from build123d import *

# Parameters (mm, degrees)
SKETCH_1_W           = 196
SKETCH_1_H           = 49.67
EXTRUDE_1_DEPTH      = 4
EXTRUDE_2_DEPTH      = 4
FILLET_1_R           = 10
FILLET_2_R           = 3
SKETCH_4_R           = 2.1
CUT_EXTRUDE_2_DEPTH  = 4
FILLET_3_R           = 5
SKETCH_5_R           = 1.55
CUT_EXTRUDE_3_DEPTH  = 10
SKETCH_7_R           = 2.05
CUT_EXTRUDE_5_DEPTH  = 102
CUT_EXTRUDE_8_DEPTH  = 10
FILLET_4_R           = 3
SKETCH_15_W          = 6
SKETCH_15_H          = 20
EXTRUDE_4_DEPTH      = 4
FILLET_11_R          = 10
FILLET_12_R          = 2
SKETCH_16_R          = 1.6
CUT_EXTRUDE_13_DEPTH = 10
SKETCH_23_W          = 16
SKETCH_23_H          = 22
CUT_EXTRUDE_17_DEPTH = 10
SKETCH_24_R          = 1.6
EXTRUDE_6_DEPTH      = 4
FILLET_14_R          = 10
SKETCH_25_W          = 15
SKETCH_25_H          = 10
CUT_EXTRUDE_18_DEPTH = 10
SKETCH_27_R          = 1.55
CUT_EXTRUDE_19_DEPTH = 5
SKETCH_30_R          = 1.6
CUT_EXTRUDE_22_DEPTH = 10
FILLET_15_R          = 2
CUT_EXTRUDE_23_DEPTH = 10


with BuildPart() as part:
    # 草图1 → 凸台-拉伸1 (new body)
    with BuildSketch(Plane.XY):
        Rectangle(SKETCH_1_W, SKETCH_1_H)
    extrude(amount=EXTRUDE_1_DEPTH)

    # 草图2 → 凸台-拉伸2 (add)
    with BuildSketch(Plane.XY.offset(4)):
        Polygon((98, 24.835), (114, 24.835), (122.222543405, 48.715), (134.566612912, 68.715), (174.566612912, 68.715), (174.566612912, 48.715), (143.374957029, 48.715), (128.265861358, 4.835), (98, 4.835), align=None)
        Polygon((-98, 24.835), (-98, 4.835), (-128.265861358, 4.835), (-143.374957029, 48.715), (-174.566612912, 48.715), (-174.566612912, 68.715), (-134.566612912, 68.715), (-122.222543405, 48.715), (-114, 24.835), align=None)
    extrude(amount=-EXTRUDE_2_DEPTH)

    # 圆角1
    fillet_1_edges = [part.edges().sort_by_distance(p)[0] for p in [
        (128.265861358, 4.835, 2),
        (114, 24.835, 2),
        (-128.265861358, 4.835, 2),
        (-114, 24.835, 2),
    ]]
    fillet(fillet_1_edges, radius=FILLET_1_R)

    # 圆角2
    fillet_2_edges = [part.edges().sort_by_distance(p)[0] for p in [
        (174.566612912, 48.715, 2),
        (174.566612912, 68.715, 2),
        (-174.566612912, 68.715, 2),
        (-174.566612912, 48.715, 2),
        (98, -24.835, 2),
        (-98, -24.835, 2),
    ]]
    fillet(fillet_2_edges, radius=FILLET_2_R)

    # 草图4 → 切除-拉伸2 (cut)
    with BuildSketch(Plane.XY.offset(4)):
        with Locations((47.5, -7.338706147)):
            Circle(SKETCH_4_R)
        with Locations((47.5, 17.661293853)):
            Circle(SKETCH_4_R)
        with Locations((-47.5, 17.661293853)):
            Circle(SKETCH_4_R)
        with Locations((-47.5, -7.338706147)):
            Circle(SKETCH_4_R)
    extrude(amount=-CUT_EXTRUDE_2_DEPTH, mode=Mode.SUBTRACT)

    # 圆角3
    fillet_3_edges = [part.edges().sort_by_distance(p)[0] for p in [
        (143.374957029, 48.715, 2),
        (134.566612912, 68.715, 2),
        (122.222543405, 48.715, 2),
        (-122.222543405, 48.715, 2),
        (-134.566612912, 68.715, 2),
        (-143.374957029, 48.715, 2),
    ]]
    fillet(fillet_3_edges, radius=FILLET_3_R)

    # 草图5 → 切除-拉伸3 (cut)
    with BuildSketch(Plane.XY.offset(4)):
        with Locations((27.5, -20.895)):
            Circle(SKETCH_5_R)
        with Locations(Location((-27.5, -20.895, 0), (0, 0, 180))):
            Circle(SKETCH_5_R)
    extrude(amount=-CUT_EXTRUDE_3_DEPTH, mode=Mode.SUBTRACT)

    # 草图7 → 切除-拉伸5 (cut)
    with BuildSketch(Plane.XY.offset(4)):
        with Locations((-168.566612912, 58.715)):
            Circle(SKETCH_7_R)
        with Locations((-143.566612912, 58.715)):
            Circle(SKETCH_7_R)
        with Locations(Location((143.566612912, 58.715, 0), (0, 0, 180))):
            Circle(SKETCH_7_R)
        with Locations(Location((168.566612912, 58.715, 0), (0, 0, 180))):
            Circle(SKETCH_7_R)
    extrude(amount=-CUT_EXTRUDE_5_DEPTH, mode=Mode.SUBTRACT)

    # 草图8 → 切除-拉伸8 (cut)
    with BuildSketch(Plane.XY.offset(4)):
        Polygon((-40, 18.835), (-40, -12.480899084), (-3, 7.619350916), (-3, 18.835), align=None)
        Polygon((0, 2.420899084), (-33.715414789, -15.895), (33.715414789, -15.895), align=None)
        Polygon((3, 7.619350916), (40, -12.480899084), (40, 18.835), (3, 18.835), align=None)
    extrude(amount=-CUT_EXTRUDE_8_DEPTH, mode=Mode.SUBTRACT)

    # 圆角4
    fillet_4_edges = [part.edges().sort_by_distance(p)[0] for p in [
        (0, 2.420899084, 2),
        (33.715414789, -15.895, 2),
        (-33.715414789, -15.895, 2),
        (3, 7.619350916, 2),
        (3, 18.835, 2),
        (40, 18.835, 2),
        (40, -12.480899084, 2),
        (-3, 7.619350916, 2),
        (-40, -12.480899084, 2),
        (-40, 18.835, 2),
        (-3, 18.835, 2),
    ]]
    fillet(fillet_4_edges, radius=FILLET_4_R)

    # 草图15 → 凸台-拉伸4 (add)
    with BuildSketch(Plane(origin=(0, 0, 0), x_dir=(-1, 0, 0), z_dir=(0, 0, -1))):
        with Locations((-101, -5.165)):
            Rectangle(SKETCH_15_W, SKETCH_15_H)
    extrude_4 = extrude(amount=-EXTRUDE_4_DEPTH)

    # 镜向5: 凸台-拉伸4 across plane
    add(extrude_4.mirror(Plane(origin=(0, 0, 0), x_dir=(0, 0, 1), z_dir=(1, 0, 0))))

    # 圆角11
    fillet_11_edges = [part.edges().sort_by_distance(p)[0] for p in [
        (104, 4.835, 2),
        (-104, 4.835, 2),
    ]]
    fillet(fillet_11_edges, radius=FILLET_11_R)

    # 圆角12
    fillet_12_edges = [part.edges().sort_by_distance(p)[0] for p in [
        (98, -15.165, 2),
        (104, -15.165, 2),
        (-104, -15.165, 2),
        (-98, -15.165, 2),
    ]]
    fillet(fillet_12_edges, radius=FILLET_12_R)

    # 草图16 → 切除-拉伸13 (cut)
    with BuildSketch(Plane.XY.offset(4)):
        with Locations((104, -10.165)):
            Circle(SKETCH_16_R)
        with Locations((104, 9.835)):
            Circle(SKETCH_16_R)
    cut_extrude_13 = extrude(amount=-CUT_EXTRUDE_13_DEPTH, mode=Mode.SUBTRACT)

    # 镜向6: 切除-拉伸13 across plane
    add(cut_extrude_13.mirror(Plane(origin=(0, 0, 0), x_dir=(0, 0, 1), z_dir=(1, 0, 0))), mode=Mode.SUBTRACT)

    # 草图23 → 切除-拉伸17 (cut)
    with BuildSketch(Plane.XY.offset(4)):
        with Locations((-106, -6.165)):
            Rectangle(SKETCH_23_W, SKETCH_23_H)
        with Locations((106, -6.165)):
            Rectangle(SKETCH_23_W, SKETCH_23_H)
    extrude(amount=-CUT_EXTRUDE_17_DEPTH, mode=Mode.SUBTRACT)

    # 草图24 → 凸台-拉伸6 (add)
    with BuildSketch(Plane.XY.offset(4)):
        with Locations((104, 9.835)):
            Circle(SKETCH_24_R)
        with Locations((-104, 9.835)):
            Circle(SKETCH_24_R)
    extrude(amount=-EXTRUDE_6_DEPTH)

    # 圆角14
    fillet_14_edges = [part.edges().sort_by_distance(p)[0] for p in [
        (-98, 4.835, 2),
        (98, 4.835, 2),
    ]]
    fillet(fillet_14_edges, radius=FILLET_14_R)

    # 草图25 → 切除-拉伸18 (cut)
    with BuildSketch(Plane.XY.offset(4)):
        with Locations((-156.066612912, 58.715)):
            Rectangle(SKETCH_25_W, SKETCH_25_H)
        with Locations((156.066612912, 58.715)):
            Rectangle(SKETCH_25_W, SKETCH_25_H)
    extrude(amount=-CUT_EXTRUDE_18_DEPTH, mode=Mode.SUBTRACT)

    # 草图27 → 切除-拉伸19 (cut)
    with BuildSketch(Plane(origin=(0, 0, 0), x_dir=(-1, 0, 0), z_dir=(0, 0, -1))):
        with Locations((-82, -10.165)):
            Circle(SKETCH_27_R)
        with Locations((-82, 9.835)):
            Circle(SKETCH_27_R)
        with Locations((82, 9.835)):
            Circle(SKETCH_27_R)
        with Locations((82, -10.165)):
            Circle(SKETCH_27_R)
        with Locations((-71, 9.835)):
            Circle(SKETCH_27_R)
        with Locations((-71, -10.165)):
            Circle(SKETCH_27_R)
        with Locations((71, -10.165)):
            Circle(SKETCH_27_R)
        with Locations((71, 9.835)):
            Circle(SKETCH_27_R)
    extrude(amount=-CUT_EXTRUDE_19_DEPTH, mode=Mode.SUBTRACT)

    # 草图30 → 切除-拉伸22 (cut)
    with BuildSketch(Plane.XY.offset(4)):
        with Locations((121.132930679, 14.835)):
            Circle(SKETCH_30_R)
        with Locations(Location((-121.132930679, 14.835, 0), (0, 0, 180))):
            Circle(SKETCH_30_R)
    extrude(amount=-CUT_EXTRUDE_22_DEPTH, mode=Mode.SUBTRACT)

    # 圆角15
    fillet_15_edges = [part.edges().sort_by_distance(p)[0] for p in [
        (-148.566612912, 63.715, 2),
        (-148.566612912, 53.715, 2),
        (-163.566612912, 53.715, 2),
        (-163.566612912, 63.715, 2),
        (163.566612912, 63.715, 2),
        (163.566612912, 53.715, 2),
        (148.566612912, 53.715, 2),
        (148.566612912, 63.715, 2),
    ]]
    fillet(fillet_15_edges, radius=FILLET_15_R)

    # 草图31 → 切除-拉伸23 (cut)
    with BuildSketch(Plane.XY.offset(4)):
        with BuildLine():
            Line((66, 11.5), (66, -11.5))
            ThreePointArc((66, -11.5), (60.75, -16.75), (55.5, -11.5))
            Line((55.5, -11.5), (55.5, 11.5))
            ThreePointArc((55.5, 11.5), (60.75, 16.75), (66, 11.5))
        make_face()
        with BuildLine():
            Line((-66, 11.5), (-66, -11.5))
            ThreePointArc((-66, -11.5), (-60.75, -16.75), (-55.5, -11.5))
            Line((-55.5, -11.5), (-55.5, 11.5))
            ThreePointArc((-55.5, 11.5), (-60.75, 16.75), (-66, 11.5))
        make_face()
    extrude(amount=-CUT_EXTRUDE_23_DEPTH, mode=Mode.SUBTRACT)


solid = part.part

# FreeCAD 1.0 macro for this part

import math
import FreeCAD as App
import Part
import Sketcher
Q = App.Units.Quantity


def edges_at(feature, points):
    """Names of the edges that pass closest to the given points."""
    edges = feature.Shape.Edges
    near = lambda p: min(range(len(edges)), key=lambda i: edges[i].distToShape(Part.Vertex(*p))[0])
    return sorted({f"Edge{near(p) + 1}" for p in points})

doc = App.newDocument("Part")
body = doc.addObject("PartDesign::Body", "Body")

# Sketch on XY plane
sketch1 = doc.addObject("Sketcher::SketchObject", "Sketch")
body.addObject(sketch1)
sketch1.AttachmentSupport = (doc.XY_Plane, [""])
sketch1.MapMode = "FlatFace"
sketch1.addGeometry(Part.LineSegment(App.Vector(-98, 25, 0), App.Vector(-98, -25, 0)), False)
sketch1.addGeometry(Part.LineSegment(App.Vector(-98, -25, 0), App.Vector(98, -25, 0)), False)
sketch1.addGeometry(Part.LineSegment(App.Vector(98, -25, 0), App.Vector(98, 25, 0)), False)
sketch1.addGeometry(Part.LineSegment(App.Vector(98, 25, 0), App.Vector(-98, 25, 0)), False)
sketch1.addConstraint(Sketcher.Constraint("Coincident", 0, 2, 1, 1))
sketch1.addConstraint(Sketcher.Constraint("Coincident", 1, 2, 2, 1))
sketch1.addConstraint(Sketcher.Constraint("Coincident", 2, 2, 3, 1))
sketch1.addConstraint(Sketcher.Constraint("Coincident", 3, 2, 0, 1))
sketch1.addConstraint(Sketcher.Constraint("Vertical", 0))
sketch1.addConstraint(Sketcher.Constraint("Horizontal", 1))
sketch1.addConstraint(Sketcher.Constraint("Vertical", 2))
sketch1.addConstraint(Sketcher.Constraint("Horizontal", 3))
sketch1.addConstraint(Sketcher.Constraint("Symmetric", 0, 2, 2, 2, -1, 1))
sketch1.addConstraint(Sketcher.Constraint("DistanceX", 1, 1, 1, 2, Q("196 mm")))
sketch1.addConstraint(Sketcher.Constraint("DistanceY", 0, 2, 0, 1, Q("49.67 mm")))
pad1 = doc.addObject("PartDesign::Pad", "Pad")
body.addObject(pad1)
pad1.Profile = sketch1
pad1.Length = 4

# Sketch on XY plane
sketch2 = doc.addObject("Sketcher::SketchObject", "Sketch001")
body.addObject(sketch2)
sketch2.AttachmentSupport = (doc.XY_Plane, [""])
sketch2.MapMode = "FlatFace"
sketch2.AttachmentOffset = App.Placement(App.Vector(0, 0, 4), App.Rotation())
sketch2.addGeometry(Part.LineSegment(App.Vector(114, 25, 0), App.Vector(98, 25, 0)), False)
sketch2.addGeometry(Part.LineSegment(App.Vector(98, 25, 0), App.Vector(98, 5, 0)), False)
sketch2.addGeometry(Part.LineSegment(App.Vector(98, 5, 0), App.Vector(128, 5, 0)), False)
sketch2.addGeometry(Part.LineSegment(App.Vector(128, 5, 0), App.Vector(143, 49, 0)), False)
sketch2.addGeometry(Part.LineSegment(App.Vector(143, 49, 0), App.Vector(175, 49, 0)), False)
sketch2.addGeometry(Part.LineSegment(App.Vector(175, 49, 0), App.Vector(175, 69, 0)), False)
sketch2.addGeometry(Part.LineSegment(App.Vector(175, 69, 0), App.Vector(135, 69, 0)), False)
sketch2.addGeometry(Part.LineSegment(App.Vector(135, 69, 0), App.Vector(122, 49, 0)), False)
sketch2.addGeometry(Part.LineSegment(App.Vector(122, 49, 0), App.Vector(114, 25, 0)), False)
sketch2.addGeometry(Part.LineSegment(App.Vector(-98, 5, 0), App.Vector(-98, 25, 0)), False)
sketch2.addGeometry(Part.LineSegment(App.Vector(-98, 25, 0), App.Vector(-114, 25, 0)), False)
sketch2.addGeometry(Part.LineSegment(App.Vector(-114, 25, 0), App.Vector(-122, 49, 0)), False)
sketch2.addGeometry(Part.LineSegment(App.Vector(-122, 49, 0), App.Vector(-135, 69, 0)), False)
sketch2.addGeometry(Part.LineSegment(App.Vector(-135, 69, 0), App.Vector(-175, 69, 0)), False)
sketch2.addGeometry(Part.LineSegment(App.Vector(-175, 69, 0), App.Vector(-175, 49, 0)), False)
sketch2.addGeometry(Part.LineSegment(App.Vector(-175, 49, 0), App.Vector(-143, 49, 0)), False)
sketch2.addGeometry(Part.LineSegment(App.Vector(-143, 49, 0), App.Vector(-128, 5, 0)), False)
sketch2.addGeometry(Part.LineSegment(App.Vector(-128, 5, 0), App.Vector(-98, 5, 0)), False)
sketch2.addConstraint(Sketcher.Constraint("Coincident", 0, 2, 1, 1))
sketch2.addConstraint(Sketcher.Constraint("Coincident", 1, 2, 2, 1))
sketch2.addConstraint(Sketcher.Constraint("Coincident", 2, 2, 3, 1))
sketch2.addConstraint(Sketcher.Constraint("Coincident", 3, 2, 4, 1))
sketch2.addConstraint(Sketcher.Constraint("Coincident", 4, 2, 5, 1))
sketch2.addConstraint(Sketcher.Constraint("Coincident", 5, 2, 6, 1))
sketch2.addConstraint(Sketcher.Constraint("Coincident", 6, 2, 7, 1))
sketch2.addConstraint(Sketcher.Constraint("Coincident", 7, 2, 8, 1))
sketch2.addConstraint(Sketcher.Constraint("Coincident", 8, 2, 0, 1))
sketch2.addConstraint(Sketcher.Constraint("Coincident", 9, 2, 10, 1))
sketch2.addConstraint(Sketcher.Constraint("Coincident", 10, 2, 11, 1))
sketch2.addConstraint(Sketcher.Constraint("Coincident", 11, 2, 12, 1))
sketch2.addConstraint(Sketcher.Constraint("Coincident", 12, 2, 13, 1))
sketch2.addConstraint(Sketcher.Constraint("Coincident", 13, 2, 14, 1))
sketch2.addConstraint(Sketcher.Constraint("Coincident", 14, 2, 15, 1))
sketch2.addConstraint(Sketcher.Constraint("Coincident", 15, 2, 16, 1))
sketch2.addConstraint(Sketcher.Constraint("Coincident", 16, 2, 17, 1))
sketch2.addConstraint(Sketcher.Constraint("Coincident", 17, 2, 9, 1))
sketch2.addConstraint(Sketcher.Constraint("Horizontal", 0))
sketch2.addConstraint(Sketcher.Constraint("Vertical", 1))
sketch2.addConstraint(Sketcher.Constraint("Horizontal", 2))
sketch2.addConstraint(Sketcher.Constraint("Horizontal", 4))
sketch2.addConstraint(Sketcher.Constraint("Vertical", 5))
sketch2.addConstraint(Sketcher.Constraint("Horizontal", 6))
sketch2.addConstraint(Sketcher.Constraint("Vertical", 9))
sketch2.addConstraint(Sketcher.Constraint("Horizontal", 10))
sketch2.addConstraint(Sketcher.Constraint("Horizontal", 13))
sketch2.addConstraint(Sketcher.Constraint("Vertical", 14))
sketch2.addConstraint(Sketcher.Constraint("Horizontal", 15))
sketch2.addConstraint(Sketcher.Constraint("Horizontal", 17))
sketch2.addConstraint(Sketcher.Constraint("Symmetric", 0, 2, 9, 2, -2))
sketch2.addConstraint(Sketcher.Constraint("Symmetric", 7, 2, 11, 2, -2))
sketch2.addConstraint(Sketcher.Constraint("Symmetric", 6, 2, 12, 2, -2))
sketch2.addConstraint(Sketcher.Constraint("Symmetric", 4, 2, 14, 2, -2))
sketch2.addConstraint(Sketcher.Constraint("Symmetric", 2, 2, 16, 2, -2))
sketch2.addConstraint(Sketcher.Constraint("Parallel", 3, 8))
sketch2.addConstraint(Sketcher.Constraint("Parallel", 11, 16))
sketch2.addConstraint(Sketcher.Constraint("Horizontal", 4, 2, 7, 2))
sketch2.addConstraint(Sketcher.Constraint("Equal", 0, 10))
sketch2.addConstraint(Sketcher.Constraint("Equal", 1, 5))
sketch2.addConstraint(Sketcher.Constraint("DistanceX", 0, 2, 0, 1, Q("16 mm")))
sketch2.addConstraint(Sketcher.Constraint("DistanceX", 6, 2, 6, 1, Q("40 mm")))
sketch2.addConstraint(Sketcher.Constraint("DistanceY", 1, 2, 1, 1, Q("20 mm")))
sketch2.addConstraint(Sketcher.Constraint("Angle", 3, Q("71 deg")))
sketch2.addConstraint(Sketcher.Constraint("DistanceX", -1, 1, 0, 2, Q("98 mm")))
sketch2.addConstraint(Sketcher.Constraint("DistanceY", 2, 2, 3, 2, Q("43.88 mm")))
sketch2.addConstraint(Sketcher.Constraint("DistanceY", -1, 1, 0, 2, Q("24.835 mm")))
sketch2.addConstraint(Sketcher.Constraint("DistanceX", 2, 1, 2, 2, Q("30.265861 mm")))
sketch2.addConstraint(Sketcher.Constraint("Distance", 7, Q("23.502682 mm")))
pad2 = doc.addObject("PartDesign::Pad", "Pad001")
body.addObject(pad2)
pad2.Profile = sketch2
pad2.Length = 4
pad2.Reversed = True
doc.recompute()

fillet = doc.addObject("PartDesign::Fillet", "Fillet")
body.addObject(fillet)
fillet.Base = (pad2, edges_at(pad2, [
    (128.266, 4.835, 2),
    (114, 24.835, 2),
    (-128.266, 4.835, 2),
    (-114, 24.835, 2),
]))
fillet.Radius = 10
doc.recompute()

fillet2 = doc.addObject("PartDesign::Fillet", "Fillet001")
body.addObject(fillet2)
fillet2.Base = (fillet, edges_at(fillet, [
    (174.567, 48.715, 2),
    (174.567, 68.715, 2),
    (-174.567, 68.715, 2),
    (-174.567, 48.715, 2),
    (98, -24.835, 2),
    (-98, -24.835, 2),
]))
fillet2.Radius = 3

# Sketch on XY plane
sketch3 = doc.addObject("Sketcher::SketchObject", "Sketch002")
body.addObject(sketch3)
sketch3.AttachmentSupport = (doc.XY_Plane, [""])
sketch3.MapMode = "FlatFace"
sketch3.AttachmentOffset = App.Placement(App.Vector(0, 0, 4), App.Rotation())
sketch3.addGeometry(Part.Circle(App.Vector(47.5, -7.3, 0), App.Vector(0, 0, 1), 2.1), False)
sketch3.addGeometry(Part.Circle(App.Vector(47.5, 17.7, 0), App.Vector(0, 0, 1), 2.1), False)
sketch3.addGeometry(Part.Circle(App.Vector(-47.5, 17.7, 0), App.Vector(0, 0, 1), 2.1), False)
sketch3.addGeometry(Part.Circle(App.Vector(-47.5, -7.3, 0), App.Vector(0, 0, 1), 2.1), False)
sketch3.addConstraint(Sketcher.Constraint("Equal", 0, 1))
sketch3.addConstraint(Sketcher.Constraint("Equal", 1, 2))
sketch3.addConstraint(Sketcher.Constraint("Equal", 2, 3))
sketch3.addConstraint(Sketcher.Constraint("Symmetric", 1, 3, 2, 3, -2))
sketch3.addConstraint(Sketcher.Constraint("Symmetric", 0, 3, 3, 3, -2))
sketch3.addConstraint(Sketcher.Constraint("Vertical", 0, 3, 1, 3))
sketch3.addConstraint(Sketcher.Constraint("Diameter", 0, Q("4.2 mm")))
sketch3.addConstraint(Sketcher.Constraint("DistanceY", 0, 3, 1, 3, Q("25 mm")))
sketch3.addConstraint(Sketcher.Constraint("DistanceX", 2, 3, 1, 3, Q("95 mm")))
sketch3.addConstraint(Sketcher.Constraint("DistanceY", 0, 3, -1, 1, Q("7.338706 mm")))
pocket1 = doc.addObject("PartDesign::Pocket", "Pocket")
body.addObject(pocket1)
pocket1.Profile = sketch3
pocket1.Length = 4
doc.recompute()

fillet3 = doc.addObject("PartDesign::Fillet", "Fillet002")
body.addObject(fillet3)
fillet3.Base = (pocket1, edges_at(pocket1, [
    (143.375, 48.715, 2),
    (134.567, 68.715, 2),
    (122.223, 48.715, 2),
    (-122.223, 48.715, 2),
    (-134.567, 68.715, 2),
    (-143.375, 48.715, 2),
]))
fillet3.Radius = 5

# Sketch on XY plane
sketch4 = doc.addObject("Sketcher::SketchObject", "Sketch003")
body.addObject(sketch4)
sketch4.AttachmentSupport = (doc.XY_Plane, [""])
sketch4.MapMode = "FlatFace"
sketch4.AttachmentOffset = App.Placement(App.Vector(0, 0, 4), App.Rotation())
sketch4.addGeometry(Part.Circle(App.Vector(27.5, -20.9, 0), App.Vector(0, 0, 1), 1.6), False)
sketch4.addGeometry(Part.Circle(App.Vector(-27.5, -20.9, 0), App.Vector(0, 0, 1), 1.6), False)
sketch4.addConstraint(Sketcher.Constraint("Equal", 0, 1))
sketch4.addConstraint(Sketcher.Constraint("Symmetric", 0, 3, 1, 3, -2))
sketch4.addConstraint(Sketcher.Constraint("Diameter", 0, Q("3.1 mm")))
sketch4.addConstraint(Sketcher.Constraint("DistanceX", 1, 3, 0, 3, Q("55 mm")))
sketch4.addConstraint(Sketcher.Constraint("DistanceY", 0, 3, -1, 1, Q("20.895 mm")))
pocket2 = doc.addObject("PartDesign::Pocket", "Pocket001")
body.addObject(pocket2)
pocket2.Profile = sketch4
pocket2.Length = 10

# Sketch on XY plane
sketch5 = doc.addObject("Sketcher::SketchObject", "Sketch004")
body.addObject(sketch5)
sketch5.AttachmentSupport = (doc.XY_Plane, [""])
sketch5.MapMode = "FlatFace"
sketch5.AttachmentOffset = App.Placement(App.Vector(0, 0, 4), App.Rotation())
sketch5.addGeometry(Part.Circle(App.Vector(-168.6, 58.7, 0), App.Vector(0, 0, 1), 2), False)
sketch5.addGeometry(Part.Circle(App.Vector(-143.6, 58.7, 0), App.Vector(0, 0, 1), 2), False)
sketch5.addGeometry(Part.Circle(App.Vector(143.6, 58.7, 0), App.Vector(0, 0, 1), 2), False)
sketch5.addGeometry(Part.Circle(App.Vector(168.6, 58.7, 0), App.Vector(0, 0, 1), 2), False)
sketch5.addConstraint(Sketcher.Constraint("Equal", 0, 1))
sketch5.addConstraint(Sketcher.Constraint("Equal", 1, 2))
sketch5.addConstraint(Sketcher.Constraint("Equal", 2, 3))
sketch5.addConstraint(Sketcher.Constraint("Symmetric", 1, 3, 2, 3, -2))
sketch5.addConstraint(Sketcher.Constraint("Symmetric", 0, 3, 3, 3, -2))
sketch5.addConstraint(Sketcher.Constraint("Horizontal", 0, 3, 1, 3))
sketch5.addConstraint(Sketcher.Constraint("Diameter", 0, Q("4.1 mm")))
sketch5.addConstraint(Sketcher.Constraint("DistanceX", 0, 3, 1, 3, Q("25 mm")))
sketch5.addConstraint(Sketcher.Constraint("DistanceY", -1, 1, 0, 3, Q("58.715 mm")))
sketch5.addConstraint(Sketcher.Constraint("DistanceX", 0, 3, -1, 1, Q("168.566613 mm")))
pocket3 = doc.addObject("PartDesign::Pocket", "Pocket002")
body.addObject(pocket3)
pocket3.Profile = sketch5
pocket3.Length = 102

# Sketch on XY plane
sketch6 = doc.addObject("Sketcher::SketchObject", "Sketch005")
body.addObject(sketch6)
sketch6.AttachmentSupport = (doc.XY_Plane, [""])
sketch6.MapMode = "FlatFace"
sketch6.AttachmentOffset = App.Placement(App.Vector(0, 0, 4), App.Rotation())
sketch6.addGeometry(Part.LineSegment(App.Vector(-40, 19, 0), App.Vector(-40, -12, 0)), False)
sketch6.addGeometry(Part.LineSegment(App.Vector(-40, -12, 0), App.Vector(-3, 8, 0)), False)
sketch6.addGeometry(Part.LineSegment(App.Vector(-3, 8, 0), App.Vector(-3, 19, 0)), False)
sketch6.addGeometry(Part.LineSegment(App.Vector(-3, 19, 0), App.Vector(-40, 19, 0)), False)
sketch6.addGeometry(Part.LineSegment(App.Vector(0, 2, 0), App.Vector(-34, -16, 0)), False)
sketch6.addGeometry(Part.LineSegment(App.Vector(-34, -16, 0), App.Vector(34, -16, 0)), False)
sketch6.addGeometry(Part.LineSegment(App.Vector(34, -16, 0), App.Vector(0, 2, 0)), False)
sketch6.addGeometry(Part.LineSegment(App.Vector(3, 8, 0), App.Vector(40, -12, 0)), False)
sketch6.addGeometry(Part.LineSegment(App.Vector(40, -12, 0), App.Vector(40, 19, 0)), False)
sketch6.addGeometry(Part.LineSegment(App.Vector(40, 19, 0), App.Vector(3, 19, 0)), False)
sketch6.addGeometry(Part.LineSegment(App.Vector(3, 19, 0), App.Vector(3, 8, 0)), False)
sketch6.addConstraint(Sketcher.Constraint("Coincident", 0, 2, 1, 1))
sketch6.addConstraint(Sketcher.Constraint("Coincident", 1, 2, 2, 1))
sketch6.addConstraint(Sketcher.Constraint("Coincident", 2, 2, 3, 1))
sketch6.addConstraint(Sketcher.Constraint("Coincident", 3, 2, 0, 1))
sketch6.addConstraint(Sketcher.Constraint("Coincident", 4, 2, 5, 1))
sketch6.addConstraint(Sketcher.Constraint("Coincident", 5, 2, 6, 1))
sketch6.addConstraint(Sketcher.Constraint("Coincident", 6, 2, 4, 1))
sketch6.addConstraint(Sketcher.Constraint("Coincident", 7, 2, 8, 1))
sketch6.addConstraint(Sketcher.Constraint("Coincident", 8, 2, 9, 1))
sketch6.addConstraint(Sketcher.Constraint("Coincident", 9, 2, 10, 1))
sketch6.addConstraint(Sketcher.Constraint("Coincident", 10, 2, 7, 1))
sketch6.addConstraint(Sketcher.Constraint("Vertical", 0))
sketch6.addConstraint(Sketcher.Constraint("Vertical", 2))
sketch6.addConstraint(Sketcher.Constraint("Horizontal", 3))
sketch6.addConstraint(Sketcher.Constraint("Horizontal", 5))
sketch6.addConstraint(Sketcher.Constraint("Vertical", 8))
sketch6.addConstraint(Sketcher.Constraint("Horizontal", 9))
sketch6.addConstraint(Sketcher.Constraint("Vertical", 10))
sketch6.addConstraint(Sketcher.Constraint("Symmetric", 0, 2, 7, 2, -2))
sketch6.addConstraint(Sketcher.Constraint("Symmetric", 2, 2, 9, 2, -2))
sketch6.addConstraint(Sketcher.Constraint("PointOnObject", 6, 2, -2))
sketch6.addConstraint(Sketcher.Constraint("Parallel", 1, 4))
sketch6.addConstraint(Sketcher.Constraint("Parallel", 6, 7))
sketch6.addConstraint(Sketcher.Constraint("Horizontal", 1, 2, 10, 2))
sketch6.addConstraint(Sketcher.Constraint("DistanceX", 3, 2, 3, 1, Q("37 mm")))
sketch6.addConstraint(Sketcher.Constraint("DistanceX", 0, 2, -1, 1, Q("40 mm")))
sketch6.addConstraint(Sketcher.Constraint("DistanceY", 4, 2, 3, 2, Q("34.73 mm")))
sketch6.addConstraint(Sketcher.Constraint("DistanceY", 0, 2, 0, 1, Q("31.315899 mm")))
sketch6.addConstraint(Sketcher.Constraint("DistanceY", -1, 1, 2, 2, Q("18.835 mm")))
sketch6.addConstraint(Sketcher.Constraint("DistanceX", 5, 1, 5, 2, Q("67.43083 mm")))
sketch6.addConstraint(Sketcher.Constraint("DistanceY", 2, 1, 2, 2, Q("11.215649 mm")))
pocket4 = doc.addObject("PartDesign::Pocket", "Pocket003")
body.addObject(pocket4)
pocket4.Profile = sketch6
pocket4.Length = 10
doc.recompute()

fillet4 = doc.addObject("PartDesign::Fillet", "Fillet003")
body.addObject(fillet4)
fillet4.Base = (pocket4, edges_at(pocket4, [
    (0, 2.421, 2),
    (33.715, -15.895, 2),
    (-33.715, -15.895, 2),
    (3, 7.619, 2),
    (3, 18.835, 2),
    (40, 18.835, 2),
    (40, -12.481, 2),
    (-3, 7.619, 2),
    (-40, -12.481, 2),
    (-40, 18.835, 2),
    (-3, 18.835, 2),
]))
fillet4.Radius = 3

# Sketch on XY plane
sketch7 = doc.addObject("Sketcher::SketchObject", "Sketch006")
body.addObject(sketch7)
sketch7.AttachmentSupport = (doc.XY_Plane, [""])
sketch7.MapMode = "FlatFace"
sketch7.addGeometry(Part.LineSegment(App.Vector(104, 5, 0), App.Vector(104, -15, 0)), False)
sketch7.addGeometry(Part.LineSegment(App.Vector(104, -15, 0), App.Vector(98, -15, 0)), False)
sketch7.addGeometry(Part.LineSegment(App.Vector(98, -15, 0), App.Vector(98, 5, 0)), False)
sketch7.addGeometry(Part.LineSegment(App.Vector(98, 5, 0), App.Vector(104, 5, 0)), False)
sketch7.addConstraint(Sketcher.Constraint("Coincident", 0, 2, 1, 1))
sketch7.addConstraint(Sketcher.Constraint("Coincident", 1, 2, 2, 1))
sketch7.addConstraint(Sketcher.Constraint("Coincident", 2, 2, 3, 1))
sketch7.addConstraint(Sketcher.Constraint("Coincident", 3, 2, 0, 1))
sketch7.addConstraint(Sketcher.Constraint("Vertical", 0))
sketch7.addConstraint(Sketcher.Constraint("Horizontal", 1))
sketch7.addConstraint(Sketcher.Constraint("Vertical", 2))
sketch7.addConstraint(Sketcher.Constraint("Horizontal", 3))
sketch7.addConstraint(Sketcher.Constraint("DistanceX", 1, 2, 1, 1, Q("6 mm")))
sketch7.addConstraint(Sketcher.Constraint("DistanceY", 0, 2, 0, 1, Q("20 mm")))
sketch7.addConstraint(Sketcher.Constraint("DistanceX", -1, 1, 0, 2, Q("104 mm")))
sketch7.addConstraint(Sketcher.Constraint("DistanceY", 0, 2, -1, 1, Q("15.165 mm")))
pad3 = doc.addObject("PartDesign::Pad", "Pad002")
body.addObject(pad3)
pad3.Profile = sketch7
pad3.Length = 4
doc.recompute()

mirrored = doc.addObject("PartDesign::Mirrored", "Mirrored")
body.addObject(mirrored)
mirrored.Originals = [pad3]
mirrored.MirrorPlane = (doc.YZ_Plane, [""])
body.Tip = mirrored
doc.recompute()

fillet5 = doc.addObject("PartDesign::Fillet", "Fillet004")
body.addObject(fillet5)
fillet5.Base = (mirrored, edges_at(mirrored, [(104, 4.835, 2), (-104, 4.835, 2)]))
fillet5.Radius = 10
doc.recompute()

fillet6 = doc.addObject("PartDesign::Fillet", "Fillet005")
body.addObject(fillet6)
fillet6.Base = (fillet5, edges_at(fillet5, [
    (98, -15.165, 2),
    (104, -15.165, 2),
    (-104, -15.165, 2),
    (-98, -15.165, 2),
]))
fillet6.Radius = 2

# Sketch on XY plane
sketch8 = doc.addObject("Sketcher::SketchObject", "Sketch007")
body.addObject(sketch8)
sketch8.AttachmentSupport = (doc.XY_Plane, [""])
sketch8.MapMode = "FlatFace"
sketch8.AttachmentOffset = App.Placement(App.Vector(0, 0, 4), App.Rotation())
sketch8.addGeometry(Part.Circle(App.Vector(104, -10.2, 0), App.Vector(0, 0, 1), 1.6), False)
sketch8.addGeometry(Part.Circle(App.Vector(104, 9.8, 0), App.Vector(0, 0, 1), 1.6), False)
sketch8.addConstraint(Sketcher.Constraint("Equal", 0, 1))
sketch8.addConstraint(Sketcher.Constraint("Vertical", 0, 3, 1, 3))
sketch8.addConstraint(Sketcher.Constraint("Diameter", 0, Q("3.2 mm")))
sketch8.addConstraint(Sketcher.Constraint("DistanceX", -1, 1, 0, 3, Q("104 mm")))
sketch8.addConstraint(Sketcher.Constraint("DistanceY", 0, 3, 1, 3, Q("20 mm")))
sketch8.addConstraint(Sketcher.Constraint("DistanceY", 0, 3, -1, 1, Q("10.165 mm")))
pocket5 = doc.addObject("PartDesign::Pocket", "Pocket004")
body.addObject(pocket5)
pocket5.Profile = sketch8
pocket5.Length = 10
doc.recompute()

mirrored2 = doc.addObject("PartDesign::Mirrored", "Mirrored001")
body.addObject(mirrored2)
mirrored2.Originals = [pocket5]
mirrored2.MirrorPlane = (doc.YZ_Plane, [""])
body.Tip = mirrored2

# Sketch on XY plane
sketch9 = doc.addObject("Sketcher::SketchObject", "Sketch008")
body.addObject(sketch9)
sketch9.AttachmentSupport = (doc.XY_Plane, [""])
sketch9.MapMode = "FlatFace"
sketch9.AttachmentOffset = App.Placement(App.Vector(0, 0, 4), App.Rotation())
sketch9.addGeometry(Part.LineSegment(App.Vector(-114, 5, 0), App.Vector(-114, -17, 0)), False)
sketch9.addGeometry(Part.LineSegment(App.Vector(-114, -17, 0), App.Vector(-98, -17, 0)), False)
sketch9.addGeometry(Part.LineSegment(App.Vector(-98, -17, 0), App.Vector(-98, 5, 0)), False)
sketch9.addGeometry(Part.LineSegment(App.Vector(-98, 5, 0), App.Vector(-114, 5, 0)), False)
sketch9.addGeometry(Part.LineSegment(App.Vector(98, 5, 0), App.Vector(98, -17, 0)), False)
sketch9.addGeometry(Part.LineSegment(App.Vector(98, -17, 0), App.Vector(114, -17, 0)), False)
sketch9.addGeometry(Part.LineSegment(App.Vector(114, -17, 0), App.Vector(114, 5, 0)), False)
sketch9.addGeometry(Part.LineSegment(App.Vector(114, 5, 0), App.Vector(98, 5, 0)), False)
sketch9.addConstraint(Sketcher.Constraint("Coincident", 0, 2, 1, 1))
sketch9.addConstraint(Sketcher.Constraint("Coincident", 1, 2, 2, 1))
sketch9.addConstraint(Sketcher.Constraint("Coincident", 2, 2, 3, 1))
sketch9.addConstraint(Sketcher.Constraint("Coincident", 3, 2, 0, 1))
sketch9.addConstraint(Sketcher.Constraint("Coincident", 4, 2, 5, 1))
sketch9.addConstraint(Sketcher.Constraint("Coincident", 5, 2, 6, 1))
sketch9.addConstraint(Sketcher.Constraint("Coincident", 6, 2, 7, 1))
sketch9.addConstraint(Sketcher.Constraint("Coincident", 7, 2, 4, 1))
sketch9.addConstraint(Sketcher.Constraint("Vertical", 0))
sketch9.addConstraint(Sketcher.Constraint("Horizontal", 1))
sketch9.addConstraint(Sketcher.Constraint("Vertical", 2))
sketch9.addConstraint(Sketcher.Constraint("Horizontal", 3))
sketch9.addConstraint(Sketcher.Constraint("Vertical", 4))
sketch9.addConstraint(Sketcher.Constraint("Horizontal", 5))
sketch9.addConstraint(Sketcher.Constraint("Vertical", 6))
sketch9.addConstraint(Sketcher.Constraint("Horizontal", 7))
sketch9.addConstraint(Sketcher.Constraint("Symmetric", 1, 2, 4, 2, -2))
sketch9.addConstraint(Sketcher.Constraint("Symmetric", 3, 2, 6, 2, -2))
sketch9.addConstraint(Sketcher.Constraint("DistanceX", 1, 1, 1, 2, Q("16 mm")))
sketch9.addConstraint(Sketcher.Constraint("DistanceY", 0, 2, 0, 1, Q("22 mm")))
sketch9.addConstraint(Sketcher.Constraint("DistanceX", 0, 2, -1, 1, Q("114 mm")))
sketch9.addConstraint(Sketcher.Constraint("DistanceY", 0, 2, -1, 1, Q("17.165 mm")))
pocket6 = doc.addObject("PartDesign::Pocket", "Pocket005")
body.addObject(pocket6)
pocket6.Profile = sketch9
pocket6.Length = 10

# Sketch on XY plane
sketch10 = doc.addObject("Sketcher::SketchObject", "Sketch009")
body.addObject(sketch10)
sketch10.AttachmentSupport = (doc.XY_Plane, [""])
sketch10.MapMode = "FlatFace"
sketch10.AttachmentOffset = App.Placement(App.Vector(0, 0, 4), App.Rotation())
sketch10.addGeometry(Part.Circle(App.Vector(104, 9.8, 0), App.Vector(0, 0, 1), 1.6), False)
sketch10.addGeometry(Part.Circle(App.Vector(-104, 9.8, 0), App.Vector(0, 0, 1), 1.6), False)
sketch10.addConstraint(Sketcher.Constraint("Equal", 0, 1))
sketch10.addConstraint(Sketcher.Constraint("Symmetric", 0, 3, 1, 3, -2))
sketch10.addConstraint(Sketcher.Constraint("Diameter", 0, Q("3.2 mm")))
sketch10.addConstraint(Sketcher.Constraint("DistanceX", -1, 1, 0, 3, Q("104 mm")))
sketch10.addConstraint(Sketcher.Constraint("DistanceY", -1, 1, 0, 3, Q("9.835 mm")))
pad4 = doc.addObject("PartDesign::Pad", "Pad003")
body.addObject(pad4)
pad4.Profile = sketch10
pad4.Length = 4
pad4.Reversed = True
doc.recompute()

fillet7 = doc.addObject("PartDesign::Fillet", "Fillet006")
body.addObject(fillet7)
fillet7.Base = (pad4, edges_at(pad4, [(-98, 4.835, 2), (98, 4.835, 2)]))
fillet7.Radius = 10

# Sketch on XY plane
sketch11 = doc.addObject("Sketcher::SketchObject", "Sketch010")
body.addObject(sketch11)
sketch11.AttachmentSupport = (doc.XY_Plane, [""])
sketch11.MapMode = "FlatFace"
sketch11.AttachmentOffset = App.Placement(App.Vector(0, 0, 4), App.Rotation())
sketch11.addGeometry(Part.LineSegment(App.Vector(-164, 64, 0), App.Vector(-164, 54, 0)), False)
sketch11.addGeometry(Part.LineSegment(App.Vector(-164, 54, 0), App.Vector(-149, 54, 0)), False)
sketch11.addGeometry(Part.LineSegment(App.Vector(-149, 54, 0), App.Vector(-149, 64, 0)), False)
sketch11.addGeometry(Part.LineSegment(App.Vector(-149, 64, 0), App.Vector(-164, 64, 0)), False)
sketch11.addGeometry(Part.LineSegment(App.Vector(149, 64, 0), App.Vector(149, 54, 0)), False)
sketch11.addGeometry(Part.LineSegment(App.Vector(149, 54, 0), App.Vector(164, 54, 0)), False)
sketch11.addGeometry(Part.LineSegment(App.Vector(164, 54, 0), App.Vector(164, 64, 0)), False)
sketch11.addGeometry(Part.LineSegment(App.Vector(164, 64, 0), App.Vector(149, 64, 0)), False)
sketch11.addConstraint(Sketcher.Constraint("Coincident", 0, 2, 1, 1))
sketch11.addConstraint(Sketcher.Constraint("Coincident", 1, 2, 2, 1))
sketch11.addConstraint(Sketcher.Constraint("Coincident", 2, 2, 3, 1))
sketch11.addConstraint(Sketcher.Constraint("Coincident", 3, 2, 0, 1))
sketch11.addConstraint(Sketcher.Constraint("Coincident", 4, 2, 5, 1))
sketch11.addConstraint(Sketcher.Constraint("Coincident", 5, 2, 6, 1))
sketch11.addConstraint(Sketcher.Constraint("Coincident", 6, 2, 7, 1))
sketch11.addConstraint(Sketcher.Constraint("Coincident", 7, 2, 4, 1))
sketch11.addConstraint(Sketcher.Constraint("Vertical", 0))
sketch11.addConstraint(Sketcher.Constraint("Horizontal", 1))
sketch11.addConstraint(Sketcher.Constraint("Vertical", 2))
sketch11.addConstraint(Sketcher.Constraint("Horizontal", 3))
sketch11.addConstraint(Sketcher.Constraint("Vertical", 4))
sketch11.addConstraint(Sketcher.Constraint("Horizontal", 5))
sketch11.addConstraint(Sketcher.Constraint("Vertical", 6))
sketch11.addConstraint(Sketcher.Constraint("Horizontal", 7))
sketch11.addConstraint(Sketcher.Constraint("Symmetric", 1, 2, 4, 2, -2))
sketch11.addConstraint(Sketcher.Constraint("Symmetric", 3, 2, 6, 2, -2))
sketch11.addConstraint(Sketcher.Constraint("DistanceX", 1, 1, 1, 2, Q("15 mm")))
sketch11.addConstraint(Sketcher.Constraint("DistanceY", 0, 2, 0, 1, Q("10 mm")))
sketch11.addConstraint(Sketcher.Constraint("DistanceY", -1, 1, 0, 2, Q("53.715 mm")))
sketch11.addConstraint(Sketcher.Constraint("DistanceX", 0, 2, -1, 1, Q("163.566613 mm")))
pocket7 = doc.addObject("PartDesign::Pocket", "Pocket006")
body.addObject(pocket7)
pocket7.Profile = sketch11
pocket7.Length = 10

# Sketch on XY plane
sketch12 = doc.addObject("Sketcher::SketchObject", "Sketch011")
body.addObject(sketch12)
sketch12.AttachmentSupport = (doc.XY_Plane, [""])
sketch12.MapMode = "FlatFace"
sketch12.addGeometry(Part.Circle(App.Vector(82, -10.2, 0), App.Vector(0, 0, 1), 1.6), False)
sketch12.addGeometry(Part.Circle(App.Vector(82, 9.8, 0), App.Vector(0, 0, 1), 1.6), False)
sketch12.addGeometry(Part.Circle(App.Vector(-82, 9.8, 0), App.Vector(0, 0, 1), 1.6), False)
sketch12.addGeometry(Part.Circle(App.Vector(-82, -10.2, 0), App.Vector(0, 0, 1), 1.6), False)
sketch12.addGeometry(Part.Circle(App.Vector(71, 9.8, 0), App.Vector(0, 0, 1), 1.6), False)
sketch12.addGeometry(Part.Circle(App.Vector(71, -10.2, 0), App.Vector(0, 0, 1), 1.6), False)
sketch12.addGeometry(Part.Circle(App.Vector(-71, -10.2, 0), App.Vector(0, 0, 1), 1.6), False)
sketch12.addGeometry(Part.Circle(App.Vector(-71, 9.8, 0), App.Vector(0, 0, 1), 1.6), False)
sketch12.addConstraint(Sketcher.Constraint("Equal", 0, 1))
sketch12.addConstraint(Sketcher.Constraint("Equal", 1, 2))
sketch12.addConstraint(Sketcher.Constraint("Equal", 2, 3))
sketch12.addConstraint(Sketcher.Constraint("Equal", 3, 4))
sketch12.addConstraint(Sketcher.Constraint("Equal", 4, 5))
sketch12.addConstraint(Sketcher.Constraint("Equal", 5, 6))
sketch12.addConstraint(Sketcher.Constraint("Equal", 6, 7))
sketch12.addConstraint(Sketcher.Constraint("Symmetric", 1, 3, 2, 3, -2))
sketch12.addConstraint(Sketcher.Constraint("Symmetric", 0, 3, 3, 3, -2))
sketch12.addConstraint(Sketcher.Constraint("Symmetric", 5, 3, 6, 3, -2))
sketch12.addConstraint(Sketcher.Constraint("Symmetric", 4, 3, 7, 3, -2))
sketch12.addConstraint(Sketcher.Constraint("Horizontal", 2, 3, 4, 3))
sketch12.addConstraint(Sketcher.Constraint("Horizontal", 3, 3, 5, 3))
sketch12.addConstraint(Sketcher.Constraint("Vertical", 0, 3, 1, 3))
sketch12.addConstraint(Sketcher.Constraint("Vertical", 4, 3, 5, 3))
sketch12.addConstraint(Sketcher.Constraint("Diameter", 0, Q("3.1 mm")))
sketch12.addConstraint(Sketcher.Constraint("DistanceX", -1, 1, 0, 3, Q("82 mm")))
sketch12.addConstraint(Sketcher.Constraint("DistanceX", -1, 1, 4, 3, Q("71 mm")))
sketch12.addConstraint(Sketcher.Constraint("DistanceY", 0, 3, 1, 3, Q("20 mm")))
sketch12.addConstraint(Sketcher.Constraint("DistanceY", 0, 3, -1, 1, Q("10.165 mm")))
pocket8 = doc.addObject("PartDesign::Pocket", "Pocket007")
body.addObject(pocket8)
pocket8.Profile = sketch12
pocket8.Length = 5
pocket8.Reversed = True

# Sketch on XY plane
sketch13 = doc.addObject("Sketcher::SketchObject", "Sketch012")
body.addObject(sketch13)
sketch13.AttachmentSupport = (doc.XY_Plane, [""])
sketch13.MapMode = "FlatFace"
sketch13.AttachmentOffset = App.Placement(App.Vector(0, 0, 4), App.Rotation())
sketch13.addGeometry(Part.Circle(App.Vector(121.1, 14.8, 0), App.Vector(0, 0, 1), 1.6), False)
sketch13.addGeometry(Part.Circle(App.Vector(-121.1, 14.8, 0), App.Vector(0, 0, 1), 1.6), False)
sketch13.addConstraint(Sketcher.Constraint("Equal", 0, 1))
sketch13.addConstraint(Sketcher.Constraint("Symmetric", 0, 3, 1, 3, -2))
sketch13.addConstraint(Sketcher.Constraint("Diameter", 0, Q("3.2 mm")))
sketch13.addConstraint(Sketcher.Constraint("DistanceY", -1, 1, 0, 3, Q("14.835 mm")))
sketch13.addConstraint(Sketcher.Constraint("DistanceX", -1, 1, 0, 3, Q("121.132931 mm")))
pocket9 = doc.addObject("PartDesign::Pocket", "Pocket008")
body.addObject(pocket9)
pocket9.Profile = sketch13
pocket9.Length = 10
doc.recompute()

fillet8 = doc.addObject("PartDesign::Fillet", "Fillet007")
body.addObject(fillet8)
fillet8.Base = (pocket9, edges_at(pocket9, [
    (-148.567, 63.715, 2),
    (-148.567, 53.715, 2),
    (-163.567, 53.715, 2),
    (-163.567, 63.715, 2),
    (163.567, 63.715, 2),
    (163.567, 53.715, 2),
    (148.567, 53.715, 2),
    (148.567, 63.715, 2),
]))
fillet8.Radius = 2

# Sketch on XY plane
sketch14 = doc.addObject("Sketcher::SketchObject", "Sketch013")
body.addObject(sketch14)
sketch14.AttachmentSupport = (doc.XY_Plane, [""])
sketch14.MapMode = "FlatFace"
sketch14.AttachmentOffset = App.Placement(App.Vector(0, 0, 4), App.Rotation())
sketch14.addGeometry(Part.LineSegment(App.Vector(66, -12, 0), App.Vector(66, 12, 0)), False)
sketch14.addGeometry(Part.ArcOfCircle(Part.Circle(App.Vector(61, 12, 0), App.Vector(0, 0, 1), 5), math.radians(0), math.radians(180)), False)
sketch14.addGeometry(Part.LineSegment(App.Vector(56, 12, 0), App.Vector(56, -12, 0)), False)
sketch14.addGeometry(Part.ArcOfCircle(Part.Circle(App.Vector(61, -12, 0), App.Vector(0, 0, 1), 5), math.radians(180), math.radians(360)), False)
sketch14.addGeometry(Part.LineSegment(App.Vector(-66, 12, 0), App.Vector(-66, -12, 0)), False)
sketch14.addGeometry(Part.ArcOfCircle(Part.Circle(App.Vector(-61, -12, 0), App.Vector(0, 0, 1), 5), math.radians(180), math.radians(360)), False)
sketch14.addGeometry(Part.LineSegment(App.Vector(-56, -12, 0), App.Vector(-56, 12, 0)), False)
sketch14.addGeometry(Part.ArcOfCircle(Part.Circle(App.Vector(-61, 12, 0), App.Vector(0, 0, 1), 5), math.radians(0), math.radians(180)), False)
sketch14.addConstraint(Sketcher.Constraint("Tangent", 0, 2, 1, 1))
sketch14.addConstraint(Sketcher.Constraint("Tangent", 1, 2, 2, 1))
sketch14.addConstraint(Sketcher.Constraint("Tangent", 2, 2, 3, 1))
sketch14.addConstraint(Sketcher.Constraint("Tangent", 3, 2, 0, 1))
sketch14.addConstraint(Sketcher.Constraint("Tangent", 4, 2, 5, 1))
sketch14.addConstraint(Sketcher.Constraint("Tangent", 5, 2, 6, 1))
sketch14.addConstraint(Sketcher.Constraint("Tangent", 6, 2, 7, 1))
sketch14.addConstraint(Sketcher.Constraint("Tangent", 7, 2, 4, 1))
sketch14.addConstraint(Sketcher.Constraint("Vertical", 0))
sketch14.addConstraint(Sketcher.Constraint("Vertical", 2))
sketch14.addConstraint(Sketcher.Constraint("Vertical", 4))
sketch14.addConstraint(Sketcher.Constraint("Vertical", 6))
sketch14.addConstraint(Sketcher.Constraint("Equal", 3, 5))
sketch14.addConstraint(Sketcher.Constraint("Symmetric", 1, 3, 5, 3, -1, 1))
sketch14.addConstraint(Sketcher.Constraint("Horizontal", 3, 3, 5, 3))
sketch14.addConstraint(Sketcher.Constraint("Horizontal", 1, 3, 7, 3))
sketch14.addConstraint(Sketcher.Constraint("DistanceY", 0, 1, 0, 2, Q("23 mm")))
sketch14.addConstraint(Sketcher.Constraint("Radius", 1, Q("5.25 mm")))
sketch14.addConstraint(Sketcher.Constraint("DistanceX", -1, 1, 0, 2, Q("66 mm")))
pocket10 = doc.addObject("PartDesign::Pocket", "Pocket009")
body.addObject(pocket10)
pocket10.Profile = sketch14
pocket10.Length = 10

doc.recompute()
